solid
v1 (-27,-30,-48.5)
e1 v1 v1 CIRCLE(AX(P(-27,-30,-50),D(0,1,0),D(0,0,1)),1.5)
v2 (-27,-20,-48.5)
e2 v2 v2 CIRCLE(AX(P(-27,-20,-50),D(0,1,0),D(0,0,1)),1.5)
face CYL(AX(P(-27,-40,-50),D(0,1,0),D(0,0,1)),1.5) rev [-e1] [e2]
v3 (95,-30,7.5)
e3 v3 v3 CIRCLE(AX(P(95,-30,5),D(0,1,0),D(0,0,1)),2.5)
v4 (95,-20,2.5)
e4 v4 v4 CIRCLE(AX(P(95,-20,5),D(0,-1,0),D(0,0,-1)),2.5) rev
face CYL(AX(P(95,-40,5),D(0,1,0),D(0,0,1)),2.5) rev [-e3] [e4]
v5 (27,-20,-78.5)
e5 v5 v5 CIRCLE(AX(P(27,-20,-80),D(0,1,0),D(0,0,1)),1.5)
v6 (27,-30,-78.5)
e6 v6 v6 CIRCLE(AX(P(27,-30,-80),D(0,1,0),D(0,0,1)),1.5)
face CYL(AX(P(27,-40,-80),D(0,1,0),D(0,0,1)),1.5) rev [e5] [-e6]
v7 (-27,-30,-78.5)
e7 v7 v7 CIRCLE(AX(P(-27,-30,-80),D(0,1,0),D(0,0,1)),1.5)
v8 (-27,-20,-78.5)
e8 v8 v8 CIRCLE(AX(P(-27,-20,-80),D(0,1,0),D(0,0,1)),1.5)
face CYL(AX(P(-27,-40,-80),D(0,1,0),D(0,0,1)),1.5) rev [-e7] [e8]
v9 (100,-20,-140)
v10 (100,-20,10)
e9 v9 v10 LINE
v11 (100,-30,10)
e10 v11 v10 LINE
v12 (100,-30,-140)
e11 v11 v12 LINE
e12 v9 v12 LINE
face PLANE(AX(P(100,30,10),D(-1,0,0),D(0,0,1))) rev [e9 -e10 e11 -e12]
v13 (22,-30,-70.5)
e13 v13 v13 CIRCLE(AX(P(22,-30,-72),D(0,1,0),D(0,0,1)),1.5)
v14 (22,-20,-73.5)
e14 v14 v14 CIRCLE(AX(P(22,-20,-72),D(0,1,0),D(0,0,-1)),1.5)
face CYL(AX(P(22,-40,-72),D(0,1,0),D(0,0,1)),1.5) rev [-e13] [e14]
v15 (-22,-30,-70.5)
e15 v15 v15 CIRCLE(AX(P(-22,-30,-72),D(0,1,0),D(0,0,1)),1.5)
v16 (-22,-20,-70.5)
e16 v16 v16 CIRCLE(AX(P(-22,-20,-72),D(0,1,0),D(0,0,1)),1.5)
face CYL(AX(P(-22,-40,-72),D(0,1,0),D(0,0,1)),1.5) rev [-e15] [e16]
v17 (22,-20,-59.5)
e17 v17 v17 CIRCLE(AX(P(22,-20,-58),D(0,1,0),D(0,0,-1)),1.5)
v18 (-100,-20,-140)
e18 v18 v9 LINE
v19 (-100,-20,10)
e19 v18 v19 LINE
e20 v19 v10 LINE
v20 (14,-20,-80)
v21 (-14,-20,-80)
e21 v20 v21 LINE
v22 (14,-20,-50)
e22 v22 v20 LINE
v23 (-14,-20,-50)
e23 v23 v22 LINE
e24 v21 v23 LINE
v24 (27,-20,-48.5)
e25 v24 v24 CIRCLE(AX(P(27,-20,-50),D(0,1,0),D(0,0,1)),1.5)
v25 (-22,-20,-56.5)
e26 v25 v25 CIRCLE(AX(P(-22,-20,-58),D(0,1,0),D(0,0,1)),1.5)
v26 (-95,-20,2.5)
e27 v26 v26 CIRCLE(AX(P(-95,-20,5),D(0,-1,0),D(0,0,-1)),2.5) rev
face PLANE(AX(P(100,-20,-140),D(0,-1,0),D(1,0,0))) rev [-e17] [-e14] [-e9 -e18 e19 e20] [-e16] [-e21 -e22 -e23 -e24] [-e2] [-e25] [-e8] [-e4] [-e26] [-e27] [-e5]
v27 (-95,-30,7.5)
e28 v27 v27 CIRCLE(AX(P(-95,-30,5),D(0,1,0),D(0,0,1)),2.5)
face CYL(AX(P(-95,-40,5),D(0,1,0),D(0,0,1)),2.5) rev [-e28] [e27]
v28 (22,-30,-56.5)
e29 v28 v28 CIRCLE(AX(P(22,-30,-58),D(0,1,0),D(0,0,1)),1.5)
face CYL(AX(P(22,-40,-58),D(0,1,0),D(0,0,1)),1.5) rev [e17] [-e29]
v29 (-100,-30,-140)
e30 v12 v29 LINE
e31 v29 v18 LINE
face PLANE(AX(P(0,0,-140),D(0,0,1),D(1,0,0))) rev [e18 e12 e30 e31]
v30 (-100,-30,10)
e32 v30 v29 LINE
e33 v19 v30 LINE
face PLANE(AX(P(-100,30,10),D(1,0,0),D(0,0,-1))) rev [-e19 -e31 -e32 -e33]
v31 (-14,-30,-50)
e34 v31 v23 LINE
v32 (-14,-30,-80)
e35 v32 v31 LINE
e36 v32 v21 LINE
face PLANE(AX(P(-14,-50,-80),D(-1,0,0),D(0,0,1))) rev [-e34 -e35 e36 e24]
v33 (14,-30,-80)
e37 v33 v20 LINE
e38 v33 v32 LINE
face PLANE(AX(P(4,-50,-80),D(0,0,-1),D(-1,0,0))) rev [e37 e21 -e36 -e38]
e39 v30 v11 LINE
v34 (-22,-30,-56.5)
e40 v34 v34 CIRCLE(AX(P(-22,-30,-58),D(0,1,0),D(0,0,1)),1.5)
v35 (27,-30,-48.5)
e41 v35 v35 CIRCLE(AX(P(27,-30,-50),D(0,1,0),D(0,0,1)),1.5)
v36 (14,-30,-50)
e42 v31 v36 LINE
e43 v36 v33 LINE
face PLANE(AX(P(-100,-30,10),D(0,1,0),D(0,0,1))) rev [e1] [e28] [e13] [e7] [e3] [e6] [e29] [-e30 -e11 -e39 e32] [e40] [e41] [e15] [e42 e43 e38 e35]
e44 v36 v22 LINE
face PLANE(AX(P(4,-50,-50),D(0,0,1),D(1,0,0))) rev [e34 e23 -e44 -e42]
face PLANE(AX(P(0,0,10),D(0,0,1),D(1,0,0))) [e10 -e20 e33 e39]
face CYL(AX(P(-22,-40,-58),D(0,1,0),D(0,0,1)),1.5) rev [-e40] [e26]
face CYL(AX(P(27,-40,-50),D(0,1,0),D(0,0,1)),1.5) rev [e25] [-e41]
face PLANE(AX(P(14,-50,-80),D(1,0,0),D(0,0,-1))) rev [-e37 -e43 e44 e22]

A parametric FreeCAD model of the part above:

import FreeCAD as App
import Part
import Sketcher

V = App.Vector
Q = App.Units.Quantity


def add_polygon(sketch, points):
    """Adds a closed chain of lines whose ends are joined by coincident constraints."""
    first, n = sketch.GeometryCount, len(points)
    for a, b in zip(points, points[1:] + points[:1]):
        sketch.addGeometry(Part.LineSegment(App.Vector(*a, 0), App.Vector(*b, 0)), False)
    for i in range(n):
        sketch.addConstraint(Sketcher.Constraint("Coincident", first + i, 2, first + (i + 1) % n, 1))

doc = App.newDocument("Part")
params = doc.addObject("Spreadsheet::Sheet", "Params")
for row, (alias, value) in enumerate([
    ("sketch1_width", "200 mm"),
    ("sketch1_height", "60 mm"),
    ("pad1_length", "10 mm"),
    ("sketch2_width", "200 mm"),
    ("sketch2_height", "10 mm"),
    ("pad2_length", "140 mm"),
    ("sketch3_diameter", "31 mm"),
    ("pocket1_length", "60 mm"),
    ("sketch4_width", "10 mm"),
    ("sketch4_height", "30 mm"),
    ("pocket2_length", "30 mm"),
    ("sketch5_diameter", "3 mm"),
    ("sketch5_diameter2", "5 mm"),
    ("pocket3_length", "20 mm"),
    ("pocket4_length", "260 mm"),
    ("sketch7_width", "8 mm"),
    ("sketch7_height", "30 mm"),
    ("pocket5_length", "30 mm"),
], start=1):
    params.set(f"A{row}", alias)
    params.set(f"B{row}", "=" + value)
    params.setAlias(f"B{row}", alias)

body = doc.addObject("PartDesign::Body", "Body")

# Sketch on XY plane
sketch1 = body.newObject("Sketcher::SketchObject", "Sketch")
sketch1.AttachmentSupport = (doc.getObject("XY_Plane"), [""])
sketch1.MapMode = "FlatFace"
add_polygon(sketch1, [(-100, 30), (-100, -30), (100, -30), (100, 30)])  # lines 0-3
sketch1.addConstraint(Sketcher.Constraint("Vertical", 0))
sketch1.addConstraint(Sketcher.Constraint("Horizontal", 1))
sketch1.addConstraint(Sketcher.Constraint("Vertical", 2))
sketch1.addConstraint(Sketcher.Constraint("Horizontal", 3))
sketch1.addConstraint(Sketcher.Constraint("Symmetric", 0, 2, 2, 2, -1, 1))
sketch1.addConstraint(Sketcher.Constraint("DistanceX", 1, 1, 1, 2, Q("200 mm")))
sketch1.addConstraint(Sketcher.Constraint("DistanceY", 0, 2, 0, 1, Q("60 mm")))
sketch1.setExpression("Constraints[9]", "Params.sketch1_width")
sketch1.setExpression("Constraints[10]", "Params.sketch1_height")
pad1 = body.newObject("PartDesign::Pad", "Pad")
pad1.Profile = sketch1
pad1.setExpression("Length", "Params.pad1_length")

# Sketch on XY plane
sketch2 = body.newObject("Sketcher::SketchObject", "Sketch001")
sketch2.AttachmentSupport = (doc.getObject("XY_Plane"), [""])
sketch2.MapMode = "FlatFace"
add_polygon(sketch2, [(100, -20), (100, -30), (-100, -30), (-100, -20)])  # lines 0-3
sketch2.addConstraint(Sketcher.Constraint("Vertical", 0))
sketch2.addConstraint(Sketcher.Constraint("Horizontal", 1))
sketch2.addConstraint(Sketcher.Constraint("Vertical", 2))
sketch2.addConstraint(Sketcher.Constraint("Horizontal", 3))
sketch2.addConstraint(Sketcher.Constraint("DistanceX", 1, 2, 1, 1, Q("200 mm")))
sketch2.addConstraint(Sketcher.Constraint("DistanceY", 0, 2, 0, 1, Q("10 mm")))
sketch2.addConstraint(Sketcher.Constraint("DistanceX", -1, 1, 0, 2, Q("100 mm")))
sketch2.addConstraint(Sketcher.Constraint("DistanceY", 0, 2, -1, 1, Q("30 mm")))
sketch2.setExpression("Constraints[8]", "Params.sketch2_width")
sketch2.setExpression("Constraints[9]", "Params.sketch2_height")
pad2 = body.newObject("PartDesign::Pad", "Pad001")
pad2.Profile = sketch2
pad2.setExpression("Length", "Params.pad2_length")
pad2.Reversed = True

# Sketch on XY plane
sketch3 = body.newObject("Sketcher::SketchObject", "Sketch002")
sketch3.AttachmentSupport = (doc.getObject("XY_Plane"), [""])
sketch3.MapMode = "FlatFace"
sketch3.AttachmentOffset = App.Placement(V(0, 0, 10), App.Rotation())
sketch3.addGeometry(Part.Circle(V(0, 5, 0), V(0, 0, 1), 16), False)
sketch3.addGeometry(Part.Circle(V(60, 5, 0), V(0, 0, 1), 16), False)
sketch3.addGeometry(Part.Circle(V(-60, 5, 0), V(0, 0, 1), 16), False)
sketch3.addConstraint(Sketcher.Constraint("Equal", 0, 1))
sketch3.addConstraint(Sketcher.Constraint("Equal", 1, 2))
sketch3.addConstraint(Sketcher.Constraint("Symmetric", 1, 3, 2, 3, -2))
sketch3.addConstraint(Sketcher.Constraint("PointOnObject", 0, 3, -2))
sketch3.addConstraint(Sketcher.Constraint("Horizontal", 0, 3, 1, 3))
sketch3.addConstraint(Sketcher.Constraint("Diameter", 0, Q("31 mm")))
sketch3.addConstraint(Sketcher.Constraint("DistanceY", -1, 1, 0, 3, Q("5 mm")))
sketch3.addConstraint(Sketcher.Constraint("DistanceX", -1, 1, 1, 3, Q("60 mm")))
sketch3.setExpression("Constraints[5]", "Params.sketch3_diameter")
pocket1 = body.newObject("PartDesign::Pocket", "Pocket")
pocket1.Profile = sketch3
pocket1.setExpression("Length", "Params.pocket1_length")

# Sketch on XZ plane
sketch4 = body.newObject("Sketcher::SketchObject", "Sketch003")
sketch4.AttachmentSupport = (doc.getObject("XZ_Plane"), [""])
sketch4.MapMode = "FlatFace"
sketch4.AttachmentOffset = App.Placement(V(0, 0, 20), App.Rotation())
add_polygon(sketch4, [(4, -80), (4, -50), (14, -50), (14, -80)])  # lines 0-3
add_polygon(sketch4, [(-14, -80), (-14, -50), (-4, -50), (-4, -80)])  # lines 4-7
sketch4.addConstraint(Sketcher.Constraint("Vertical", 0))
sketch4.addConstraint(Sketcher.Constraint("Horizontal", 1))
sketch4.addConstraint(Sketcher.Constraint("Vertical", 2))
sketch4.addConstraint(Sketcher.Constraint("Horizontal", 3))
sketch4.addConstraint(Sketcher.Constraint("Vertical", 4))
sketch4.addConstraint(Sketcher.Constraint("Horizontal", 5))
sketch4.addConstraint(Sketcher.Constraint("Vertical", 6))
sketch4.addConstraint(Sketcher.Constraint("Horizontal", 7))
sketch4.addConstraint(Sketcher.Constraint("Symmetric", 1, 2, 4, 2, -2))
sketch4.addConstraint(Sketcher.Constraint("Symmetric", 3, 2, 6, 2, -2))
sketch4.addConstraint(Sketcher.Constraint("DistanceX", 1, 1, 1, 2, Q("10 mm")))
sketch4.addConstraint(Sketcher.Constraint("DistanceY", 0, 1, 0, 2, Q("30 mm")))
sketch4.addConstraint(Sketcher.Constraint("DistanceX", -1, 1, 0, 2, Q("4 mm")))
sketch4.addConstraint(Sketcher.Constraint("DistanceY", 0, 2, -1, 1, Q("50 mm")))
sketch4.setExpression("Constraints[18]", "Params.sketch4_width")
sketch4.setExpression("Constraints[19]", "Params.sketch4_height")
pocket2 = body.newObject("PartDesign::Pocket", "Pocket001")
pocket2.Profile = sketch4
pocket2.setExpression("Length", "Params.pocket2_length")
pocket2.Reversed = True

# Sketch on XZ plane
sketch5 = body.newObject("Sketcher::SketchObject", "Sketch004")
sketch5.AttachmentSupport = (doc.getObject("XZ_Plane"), [""])
sketch5.MapMode = "FlatFace"
sketch5.AttachmentOffset = App.Placement(V(0, 0, 20), App.Rotation())
sketch5.addGeometry(Part.Circle(V(-27, -80, 0), V(0, 0, 1), 1.5), False)
sketch5.addGeometry(Part.Circle(V(27, -80, 0), V(0, 0, 1), 1.5), False)
sketch5.addGeometry(Part.Circle(V(27, -50, 0), V(0, 0, 1), 1.5), False)
sketch5.addGeometry(Part.Circle(V(-27, -50, 0), V(0, 0, 1), 1.5), False)
sketch5.addGeometry(Part.Circle(V(-22, -72, 0), V(0, 0, 1), 1.5), False)
sketch5.addGeometry(Part.Circle(V(-22, -58, 0), V(0, 0, 1), 1.5), False)
sketch5.addGeometry(Part.Circle(V(22, -72, 0), V(0, 0, 1), 1.5), False)
sketch5.addGeometry(Part.Circle(V(22, -58, 0), V(0, 0, 1), 1.5), False)
sketch5.addGeometry(Part.Circle(V(95, 5, 0), V(0, 0, 1), 2.5), False)
sketch5.addGeometry(Part.Circle(V(-95, 5, 0), V(0, 0, 1), 2.5), False)
sketch5.addConstraint(Sketcher.Constraint("Equal", 0, 1))
sketch5.addConstraint(Sketcher.Constraint("Equal", 1, 2))
sketch5.addConstraint(Sketcher.Constraint("Equal", 2, 3))
sketch5.addConstraint(Sketcher.Constraint("Equal", 3, 4))
sketch5.addConstraint(Sketcher.Constraint("Equal", 4, 5))
sketch5.addConstraint(Sketcher.Constraint("Equal", 5, 6))
sketch5.addConstraint(Sketcher.Constraint("Equal", 6, 7))
sketch5.addConstraint(Sketcher.Constraint("Equal", 8, 9))
sketch5.addConstraint(Sketcher.Constraint("Symmetric", 0, 3, 1, 3, -2))
sketch5.addConstraint(Sketcher.Constraint("Symmetric", 2, 3, 3, 3, -2))
sketch5.addConstraint(Sketcher.Constraint("Symmetric", 4, 3, 6, 3, -2))
sketch5.addConstraint(Sketcher.Constraint("Symmetric", 5, 3, 7, 3, -2))
sketch5.addConstraint(Sketcher.Constraint("Symmetric", 8, 3, 9, 3, -2))
sketch5.addConstraint(Sketcher.Constraint("Vertical", 1, 3, 2, 3))
sketch5.addConstraint(Sketcher.Constraint("Vertical", 4, 3, 5, 3))
sketch5.addConstraint(Sketcher.Constraint("Diameter", 0, Q("3 mm")))
sketch5.addConstraint(Sketcher.Constraint("Diameter", 8, Q("5 mm")))
sketch5.addConstraint(Sketcher.Constraint("DistanceX", 0, 3, -1, 1, Q("27 mm")))
sketch5.addConstraint(Sketcher.Constraint("DistanceY", 0, 3, -1, 1, Q("80 mm")))
sketch5.addConstraint(Sketcher.Constraint("DistanceY", 2, 3, -1, 1, Q("50 mm")))
sketch5.addConstraint(Sketcher.Constraint("DistanceX", 4, 3, -1, 1, Q("22 mm")))
sketch5.addConstraint(Sketcher.Constraint("DistanceY", 4, 3, -1, 1, Q("72 mm")))
sketch5.addConstraint(Sketcher.Constraint("DistanceY", 5, 3, -1, 1, Q("58 mm")))
sketch5.addConstraint(Sketcher.Constraint("DistanceX", -1, 1, 8, 3, Q("95 mm")))
sketch5.addConstraint(Sketcher.Constraint("DistanceY", -1, 1, 8, 3, Q("5 mm")))
sketch5.setExpression("Constraints[15]", "Params.sketch5_diameter")
sketch5.setExpression("Constraints[16]", "Params.sketch5_diameter2")
pocket3 = body.newObject("PartDesign::Pocket", "Pocket002")
pocket3.Profile = sketch5
pocket3.setExpression("Length", "Params.pocket3_length")
pocket3.Reversed = True

# Sketch on YZ plane
sketch6 = body.newObject("Sketcher::SketchObject", "Sketch005")
sketch6.AttachmentSupport = (doc.getObject("YZ_Plane"), [""])
sketch6.MapMode = "FlatFace"
add_polygon(sketch6, [(43, 34), (-20, 34), (-20, 0), (43, 0)])  # lines 0-3
sketch6.addConstraint(Sketcher.Constraint("Horizontal", 0))
sketch6.addConstraint(Sketcher.Constraint("Vertical", 1))
sketch6.addConstraint(Sketcher.Constraint("Horizontal", 2))
sketch6.addConstraint(Sketcher.Constraint("Vertical", 3))
sketch6.addConstraint(Sketcher.Constraint("PointOnObject", 1, 2, -1))
sketch6.addConstraint(Sketcher.Constraint("DistanceX", 0, 2, -1, 1, Q("20 mm")))
sketch6.addConstraint(Sketcher.Constraint("DistanceY", 1, 2, 1, 1, Q("33.765611 mm")))
sketch6.addConstraint(Sketcher.Constraint("DistanceX", 0, 2, 0, 1, Q("62.627784 mm")))
pocket4 = body.newObject("PartDesign::Pocket", "Pocket003")
pocket4.Profile = sketch6
pocket4.setExpression("Length", "Params.pocket4_length")
pocket4.Midplane = True

# Sketch on XZ plane
sketch7 = body.newObject("Sketcher::SketchObject", "Sketch006")
sketch7.AttachmentSupport = (doc.getObject("XZ_Plane"), [""])
sketch7.MapMode = "FlatFace"
sketch7.AttachmentOffset = App.Placement(V(0, 0, 20), App.Rotation())
add_polygon(sketch7, [(-4, -80), (-4, -50), (4, -50), (4, -80)])  # lines 0-3
sketch7.addConstraint(Sketcher.Constraint("Vertical", 0))
sketch7.addConstraint(Sketcher.Constraint("Horizontal", 1))
sketch7.addConstraint(Sketcher.Constraint("Vertical", 2))
sketch7.addConstraint(Sketcher.Constraint("Horizontal", 3))
sketch7.addConstraint(Sketcher.Constraint("DistanceX", 1, 1, 1, 2, Q("8 mm")))
sketch7.addConstraint(Sketcher.Constraint("DistanceY", 0, 1, 0, 2, Q("30 mm")))
sketch7.addConstraint(Sketcher.Constraint("DistanceX", 0, 2, -1, 1, Q("4 mm")))
sketch7.addConstraint(Sketcher.Constraint("DistanceY", 0, 2, -1, 1, Q("50 mm")))
sketch7.setExpression("Constraints[8]", "Params.sketch7_width")
sketch7.setExpression("Constraints[9]", "Params.sketch7_height")
pocket5 = body.newObject("PartDesign::Pocket", "Pocket004")
pocket5.Profile = sketch7
pocket5.setExpression("Length", "Params.pocket5_length")
pocket5.Reversed = True

doc.recompute()
